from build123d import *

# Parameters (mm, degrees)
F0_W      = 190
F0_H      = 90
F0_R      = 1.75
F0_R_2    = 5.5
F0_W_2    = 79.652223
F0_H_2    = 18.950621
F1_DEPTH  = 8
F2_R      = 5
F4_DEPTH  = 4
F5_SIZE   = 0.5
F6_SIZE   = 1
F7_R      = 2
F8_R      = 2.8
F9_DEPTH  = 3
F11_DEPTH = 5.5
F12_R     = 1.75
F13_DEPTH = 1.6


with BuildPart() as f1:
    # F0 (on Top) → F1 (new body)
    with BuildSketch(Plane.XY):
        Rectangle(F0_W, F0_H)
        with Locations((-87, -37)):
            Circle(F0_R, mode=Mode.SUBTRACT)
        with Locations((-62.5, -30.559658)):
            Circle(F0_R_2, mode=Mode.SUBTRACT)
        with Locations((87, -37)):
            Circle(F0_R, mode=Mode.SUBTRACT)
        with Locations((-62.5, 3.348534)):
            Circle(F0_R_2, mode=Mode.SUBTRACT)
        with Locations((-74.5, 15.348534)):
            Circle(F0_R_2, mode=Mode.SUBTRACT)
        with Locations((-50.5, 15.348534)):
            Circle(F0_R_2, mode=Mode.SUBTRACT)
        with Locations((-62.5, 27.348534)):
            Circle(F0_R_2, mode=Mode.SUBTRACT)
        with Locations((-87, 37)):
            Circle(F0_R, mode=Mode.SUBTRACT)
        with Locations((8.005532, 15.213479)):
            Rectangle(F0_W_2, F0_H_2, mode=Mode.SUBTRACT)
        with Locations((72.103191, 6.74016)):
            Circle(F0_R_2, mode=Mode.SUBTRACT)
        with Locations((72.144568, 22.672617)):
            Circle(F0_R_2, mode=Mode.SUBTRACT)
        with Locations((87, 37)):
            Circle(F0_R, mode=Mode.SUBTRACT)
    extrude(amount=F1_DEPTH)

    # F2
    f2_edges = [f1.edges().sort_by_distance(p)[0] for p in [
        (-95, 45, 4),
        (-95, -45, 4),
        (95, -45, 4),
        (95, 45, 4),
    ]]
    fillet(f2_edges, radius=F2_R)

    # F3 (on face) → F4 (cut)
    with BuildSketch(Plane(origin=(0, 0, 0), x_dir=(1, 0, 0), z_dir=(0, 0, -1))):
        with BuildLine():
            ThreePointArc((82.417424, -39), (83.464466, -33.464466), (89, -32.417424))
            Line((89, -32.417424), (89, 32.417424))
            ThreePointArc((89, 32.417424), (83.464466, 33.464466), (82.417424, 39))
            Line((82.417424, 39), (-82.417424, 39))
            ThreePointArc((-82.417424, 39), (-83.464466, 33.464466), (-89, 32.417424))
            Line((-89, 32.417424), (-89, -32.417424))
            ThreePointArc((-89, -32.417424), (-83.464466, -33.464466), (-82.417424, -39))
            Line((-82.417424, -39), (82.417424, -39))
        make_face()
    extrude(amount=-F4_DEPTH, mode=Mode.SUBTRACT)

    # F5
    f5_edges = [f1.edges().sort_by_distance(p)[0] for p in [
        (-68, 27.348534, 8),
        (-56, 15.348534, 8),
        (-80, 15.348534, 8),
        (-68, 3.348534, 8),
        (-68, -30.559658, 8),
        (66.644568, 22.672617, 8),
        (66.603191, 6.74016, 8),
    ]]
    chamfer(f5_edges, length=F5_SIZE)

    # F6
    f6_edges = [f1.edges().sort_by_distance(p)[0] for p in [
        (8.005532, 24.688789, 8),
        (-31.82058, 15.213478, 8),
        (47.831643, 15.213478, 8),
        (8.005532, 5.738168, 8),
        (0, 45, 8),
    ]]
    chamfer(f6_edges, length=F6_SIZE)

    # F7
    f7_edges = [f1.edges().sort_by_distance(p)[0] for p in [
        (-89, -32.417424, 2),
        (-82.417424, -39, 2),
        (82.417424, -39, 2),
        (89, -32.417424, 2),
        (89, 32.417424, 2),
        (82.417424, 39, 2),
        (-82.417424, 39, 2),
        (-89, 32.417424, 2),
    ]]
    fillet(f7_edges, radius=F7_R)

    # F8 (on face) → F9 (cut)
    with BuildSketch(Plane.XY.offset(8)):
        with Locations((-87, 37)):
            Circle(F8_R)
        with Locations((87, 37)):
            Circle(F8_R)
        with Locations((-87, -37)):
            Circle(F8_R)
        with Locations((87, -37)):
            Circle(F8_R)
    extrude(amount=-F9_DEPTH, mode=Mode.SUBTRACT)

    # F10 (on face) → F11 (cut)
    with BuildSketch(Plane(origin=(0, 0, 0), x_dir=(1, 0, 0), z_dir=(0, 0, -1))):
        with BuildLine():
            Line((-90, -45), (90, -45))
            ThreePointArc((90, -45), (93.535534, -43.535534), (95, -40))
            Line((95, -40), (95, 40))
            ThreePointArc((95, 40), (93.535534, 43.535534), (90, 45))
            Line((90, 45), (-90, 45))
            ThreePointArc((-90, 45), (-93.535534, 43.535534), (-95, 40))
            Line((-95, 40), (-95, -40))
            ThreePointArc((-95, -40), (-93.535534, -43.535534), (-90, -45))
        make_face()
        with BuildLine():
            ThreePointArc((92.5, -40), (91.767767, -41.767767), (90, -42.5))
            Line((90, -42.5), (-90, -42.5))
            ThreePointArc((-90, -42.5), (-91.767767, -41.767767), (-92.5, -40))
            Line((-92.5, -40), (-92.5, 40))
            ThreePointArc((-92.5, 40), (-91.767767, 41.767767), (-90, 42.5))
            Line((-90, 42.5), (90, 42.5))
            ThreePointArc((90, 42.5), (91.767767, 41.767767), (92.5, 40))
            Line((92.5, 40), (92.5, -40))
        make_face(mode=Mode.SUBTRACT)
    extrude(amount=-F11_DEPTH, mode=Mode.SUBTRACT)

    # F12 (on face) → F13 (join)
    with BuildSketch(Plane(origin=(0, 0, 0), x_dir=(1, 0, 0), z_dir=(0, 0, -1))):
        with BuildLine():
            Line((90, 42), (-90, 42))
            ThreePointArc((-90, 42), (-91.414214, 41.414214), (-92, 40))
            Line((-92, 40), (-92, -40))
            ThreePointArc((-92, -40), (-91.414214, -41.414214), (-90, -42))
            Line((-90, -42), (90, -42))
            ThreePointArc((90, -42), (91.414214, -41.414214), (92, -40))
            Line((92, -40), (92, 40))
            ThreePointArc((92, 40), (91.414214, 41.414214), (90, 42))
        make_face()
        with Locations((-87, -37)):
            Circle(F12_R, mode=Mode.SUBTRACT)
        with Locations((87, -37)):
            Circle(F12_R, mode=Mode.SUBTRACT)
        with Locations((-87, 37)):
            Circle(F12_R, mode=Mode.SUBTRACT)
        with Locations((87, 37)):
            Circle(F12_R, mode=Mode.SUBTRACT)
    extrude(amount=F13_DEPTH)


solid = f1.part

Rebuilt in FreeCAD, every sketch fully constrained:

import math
import FreeCAD as App
import Part
import Sketcher


def edges_at(feature, points):
    """Names of the edges that pass closest to the given points."""
    edges = feature.Shape.Edges
    near = lambda p: min(range(len(edges)), key=lambda i: edges[i].distToShape(Part.Vertex(*p))[0])
    return sorted({f"Edge{near(p) + 1}" for p in points})


def add_polygon(sketch, points):
    """Adds a closed chain of lines whose ends are joined by coincident constraints."""
    first, n = sketch.GeometryCount, len(points)
    for a, b in zip(points, points[1:] + points[:1]):
        sketch.addGeometry(Part.LineSegment(App.Vector(*a, 0), App.Vector(*b, 0)), False)
    for i in range(n):
        sketch.addConstraint(Sketcher.Constraint("Coincident", first + i, 2, first + (i + 1) % n, 1))

doc = App.newDocument("Part")
body = doc.addObject("PartDesign::Body", "Body")

# Sketch on XY plane
sketch1 = doc.addObject("Sketcher::SketchObject", "Sketch")
body.addObject(sketch1)
sketch1.AttachmentSupport = (doc.XY_Plane, [""])
sketch1.MapMode = "FlatFace"
add_polygon(sketch1, [(-95, 45), (-95, -45), (95, -45), (95, 45)])  # lines 0-3
sketch1.addGeometry(Part.Circle(App.Vector(-87, -37, 0), App.Vector(0, 0, 1), 1.8), False)  # 4
sketch1.addGeometry(Part.Circle(App.Vector(-62.5, -30.6, 0), App.Vector(0, 0, 1), 5.5), False)  # 5
sketch1.addGeometry(Part.Circle(App.Vector(87, -37, 0), App.Vector(0, 0, 1), 1.8), False)  # 6
sketch1.addGeometry(Part.Circle(App.Vector(-62.5, 3.3, 0), App.Vector(0, 0, 1), 5.5), False)  # 7
sketch1.addGeometry(Part.Circle(App.Vector(-74.5, 15.3, 0), App.Vector(0, 0, 1), 5.5), False)  # 8
sketch1.addGeometry(Part.Circle(App.Vector(-50.5, 15.3, 0), App.Vector(0, 0, 1), 5.5), False)  # 9
sketch1.addGeometry(Part.Circle(App.Vector(-62.5, 27.3, 0), App.Vector(0, 0, 1), 5.5), False)  # 10
sketch1.addGeometry(Part.Circle(App.Vector(-87, 37, 0), App.Vector(0, 0, 1), 1.8), False)  # 11
add_polygon(sketch1, [(47.8, 5.7), (-31.8, 5.7), (-31.8, 24.7), (47.8, 24.7)])  # lines 12-15
sketch1.addGeometry(Part.Circle(App.Vector(72.1, 6.7, 0), App.Vector(0, 0, 1), 5.5), False)  # 16
sketch1.addGeometry(Part.Circle(App.Vector(72.1, 22.7, 0), App.Vector(0, 0, 1), 5.5), False)  # 17
sketch1.addGeometry(Part.Circle(App.Vector(87, 37, 0), App.Vector(0, 0, 1), 1.8), False)  # 18
sketch1.addConstraint(Sketcher.Constraint("Vertical", 0))
sketch1.addConstraint(Sketcher.Constraint("Horizontal", 1))
sketch1.addConstraint(Sketcher.Constraint("Vertical", 2))
sketch1.addConstraint(Sketcher.Constraint("Horizontal", 3))
sketch1.addConstraint(Sketcher.Constraint("Horizontal", 12))
sketch1.addConstraint(Sketcher.Constraint("Vertical", 13))
sketch1.addConstraint(Sketcher.Constraint("Horizontal", 14))
sketch1.addConstraint(Sketcher.Constraint("Vertical", 15))
sketch1.addConstraint(Sketcher.Constraint("Equal", 4, 6))
sketch1.addConstraint(Sketcher.Constraint("Equal", 5, 7))
sketch1.addConstraint(Sketcher.Constraint("Equal", 7, 8))
sketch1.addConstraint(Sketcher.Constraint("Equal", 8, 9))
sketch1.addConstraint(Sketcher.Constraint("Equal", 9, 10))
sketch1.addConstraint(Sketcher.Constraint("Equal", 6, 11))
sketch1.addConstraint(Sketcher.Constraint("Equal", 10, 16))
sketch1.addConstraint(Sketcher.Constraint("Equal", 16, 17))
sketch1.addConstraint(Sketcher.Constraint("Equal", 11, 18))
sketch1.addConstraint(Sketcher.Constraint("Symmetric", 6, 3, 11, 3, -1, 1))
sketch1.addConstraint(Sketcher.Constraint("Symmetric", 4, 3, 18, 3, -1, 1))
sketch1.addConstraint(Sketcher.Constraint("Symmetric", 0, 2, 2, 2, -1, 1))
sketch1.addConstraint(Sketcher.Constraint("Symmetric", 4, 3, 6, 3, -2))
sketch1.addConstraint(Sketcher.Constraint("Horizontal", 8, 3, 9, 3))
sketch1.addConstraint(Sketcher.Constraint("Vertical", 5, 3, 7, 3))
sketch1.addConstraint(Sketcher.Constraint("Vertical", 7, 3, 10, 3))
sketch1.addConstraint(Sketcher.Constraint("Diameter", 5, 11.0))
sketch1.addConstraint(Sketcher.Constraint("Diameter", 4, 3.5))
sketch1.addConstraint(Sketcher.Constraint("DistanceX", 1, 1, 1, 2, 190.0))
sketch1.addConstraint(Sketcher.Constraint("DistanceY", 0, 2, 0, 1, 90.0))
sketch1.addConstraint(Sketcher.Constraint("DistanceX", 4, 3, -1, 1, 87.0))
sketch1.addConstraint(Sketcher.Constraint("DistanceY", 4, 3, -1, 1, 37.0))
sketch1.addConstraint(Sketcher.Constraint("DistanceX", 8, 3, 7, 3, 12.0))
sketch1.addConstraint(Sketcher.Constraint("DistanceY", 7, 3, 8, 3, 12.0))
sketch1.addConstraint(Sketcher.Constraint("DistanceX", 7, 3, 9, 3, 12.0))
sketch1.addConstraint(Sketcher.Constraint("DistanceY", 8, 3, 10, 3, 12.0))
sketch1.addConstraint(Sketcher.Constraint("DistanceX", 5, 3, -1, 1, 62.5))
sketch1.addConstraint(Sketcher.Constraint("DistanceY", 13, 1, 13, 2, 18.950621))
sketch1.addConstraint(Sketcher.Constraint("DistanceX", 12, 2, 12, 1, 79.652223))
sketch1.addConstraint(Sketcher.Constraint("DistanceX", -1, 1, 16, 3, 72.103191))
sketch1.addConstraint(Sketcher.Constraint("DistanceY", -1, 1, 16, 3, 6.74016))
sketch1.addConstraint(Sketcher.Constraint("DistanceX", -1, 1, 17, 3, 72.144568))
sketch1.addConstraint(Sketcher.Constraint("DistanceX", 12, 2, -1, 1, 31.82058))
sketch1.addConstraint(Sketcher.Constraint("DistanceY", -1, 1, 12, 2, 5.738168))
sketch1.addConstraint(Sketcher.Constraint("DistanceY", 5, 3, 11, 3, 67.559658))
sketch1.addConstraint(Sketcher.Constraint("DistanceY", 15, 2, 17, 3, 16.934448))
sketch1.addConstraint(Sketcher.Constraint("DistanceY", -1, 1, 7, 3, 3.348534))
pad1 = doc.addObject("PartDesign::Pad", "Pad")
body.addObject(pad1)
pad1.Profile = sketch1
pad1.Length = 8
doc.recompute()

fillet = doc.addObject("PartDesign::Fillet", "Fillet")
body.addObject(fillet)
fillet.Base = (pad1, edges_at(pad1, [
    (-95, 45, 4),
    (-95, -45, 4),
    (95, -45, 4),
    (95, 45, 4),
]))
fillet.Radius = 5

# Sketch on XY plane
sketch2 = doc.addObject("Sketcher::SketchObject", "Sketch001")
body.addObject(sketch2)
sketch2.AttachmentSupport = (doc.XY_Plane, [""])
sketch2.MapMode = "FlatFace"
sketch2.addGeometry(Part.ArcOfCircle(Part.Circle(App.Vector(87, 37, 0), App.Vector(0, 0, 1), 5), math.radians(156), math.radians(294)), False)
sketch2.addGeometry(Part.LineSegment(App.Vector(89, 32, 0), App.Vector(89, -32, 0)), False)
sketch2.addGeometry(Part.ArcOfCircle(Part.Circle(App.Vector(87, -37, 0), App.Vector(0, 0, 1), 5), math.radians(66), math.radians(204)), False)
sketch2.addGeometry(Part.LineSegment(App.Vector(82, -39, 0), App.Vector(-82, -39, 0)), False)
sketch2.addGeometry(Part.ArcOfCircle(Part.Circle(App.Vector(-87, -37, 0), App.Vector(0, 0, 1), 5), math.radians(-24), math.radians(114)), False)
sketch2.addGeometry(Part.LineSegment(App.Vector(-89, -32, 0), App.Vector(-89, 32, 0)), False)
sketch2.addGeometry(Part.ArcOfCircle(Part.Circle(App.Vector(-87, 37, 0), App.Vector(0, 0, 1), 5), math.radians(-114), math.radians(24)), False)
sketch2.addGeometry(Part.LineSegment(App.Vector(-82, 39, 0), App.Vector(82, 39, 0)), False)
sketch2.addConstraint(Sketcher.Constraint("Coincident", 0, 2, 1, 1))
sketch2.addConstraint(Sketcher.Constraint("Coincident", 1, 2, 2, 1))
sketch2.addConstraint(Sketcher.Constraint("Coincident", 2, 2, 3, 1))
sketch2.addConstraint(Sketcher.Constraint("Coincident", 3, 2, 4, 1))
sketch2.addConstraint(Sketcher.Constraint("Coincident", 4, 2, 5, 1))
sketch2.addConstraint(Sketcher.Constraint("Coincident", 5, 2, 6, 1))
sketch2.addConstraint(Sketcher.Constraint("Coincident", 6, 2, 7, 1))
sketch2.addConstraint(Sketcher.Constraint("Coincident", 7, 2, 0, 1))
sketch2.addConstraint(Sketcher.Constraint("Vertical", 1))
sketch2.addConstraint(Sketcher.Constraint("Horizontal", 3))
sketch2.addConstraint(Sketcher.Constraint("Vertical", 5))
sketch2.addConstraint(Sketcher.Constraint("Horizontal", 7))
sketch2.addConstraint(Sketcher.Constraint("Equal", 0, 2))
sketch2.addConstraint(Sketcher.Constraint("Equal", 2, 4))
sketch2.addConstraint(Sketcher.Constraint("Equal", 4, 6))
sketch2.addConstraint(Sketcher.Constraint("Symmetric", 0, 3, 4, 3, -1, 1))
sketch2.addConstraint(Sketcher.Constraint("Symmetric", 2, 3, 6, 3, -1, 1))
sketch2.addConstraint(Sketcher.Constraint("Symmetric", 2, 3, 4, 3, -2))
sketch2.addConstraint(Sketcher.Constraint("Horizontal", 1, 2, 4, 2))
sketch2.addConstraint(Sketcher.Constraint("Vertical", 3, 2, 6, 2))
sketch2.addConstraint(Sketcher.Constraint("Radius", 0, 5.0))
sketch2.addConstraint(Sketcher.Constraint("DistanceX", -1, 1, 0, 3, 87.0))
sketch2.addConstraint(Sketcher.Constraint("DistanceY", -1, 1, 0, 3, 37.0))
sketch2.addConstraint(Sketcher.Constraint("DistanceX", -1, 1, 0, 2, 89.0))
sketch2.addConstraint(Sketcher.Constraint("DistanceY", 2, 2, -1, 1, 39.0))
pocket1 = doc.addObject("PartDesign::Pocket", "Pocket")
body.addObject(pocket1)
pocket1.Profile = sketch2
pocket1.Length = 4
pocket1.Reversed = True
doc.recompute()

chamfer = doc.addObject("PartDesign::Chamfer", "Chamfer")
body.addObject(chamfer)
chamfer.Base = (pocket1, edges_at(pocket1, [
    (-68, 27.349, 8),
    (-56, 15.349, 8),
    (-80, 15.349, 8),
    (-68, 3.349, 8),
    (-68, -30.56, 8),
    (66.645, 22.673, 8),
    (66.603, 6.74, 8),
]))
chamfer.Size = 0.5
doc.recompute()

chamfer2 = doc.addObject("PartDesign::Chamfer", "Chamfer001")
body.addObject(chamfer2)
chamfer2.Base = (chamfer, edges_at(chamfer, [
    (8.006, 24.689, 8),
    (-31.821, 15.213, 8),
    (47.832, 15.213, 8),
    (8.006, 5.738, 8),
    (0, 45, 8),
]))
chamfer2.Size = 1
doc.recompute()

fillet2 = doc.addObject("PartDesign::Fillet", "Fillet001")
body.addObject(fillet2)
fillet2.Base = (chamfer2, edges_at(chamfer2, [
    (-89, -32.417, 2),
    (-82.417, -39, 2),
    (82.417, -39, 2),
    (89, -32.417, 2),
    (89, 32.417, 2),
    (82.417, 39, 2),
    (-82.417, 39, 2),
    (-89, 32.417, 2),
]))
fillet2.Radius = 2

# Sketch on XY plane
sketch3 = doc.addObject("Sketcher::SketchObject", "Sketch002")
body.addObject(sketch3)
sketch3.AttachmentSupport = (doc.XY_Plane, [""])
sketch3.MapMode = "FlatFace"
sketch3.AttachmentOffset = App.Placement(App.Vector(0, 0, 8), App.Rotation())
sketch3.addGeometry(Part.Circle(App.Vector(-87, 37, 0), App.Vector(0, 0, 1), 2.8), False)
sketch3.addGeometry(Part.Circle(App.Vector(87, 37, 0), App.Vector(0, 0, 1), 2.8), False)
sketch3.addGeometry(Part.Circle(App.Vector(-87, -37, 0), App.Vector(0, 0, 1), 2.8), False)
sketch3.addGeometry(Part.Circle(App.Vector(87, -37, 0), App.Vector(0, 0, 1), 2.8), False)
sketch3.addConstraint(Sketcher.Constraint("Equal", 0, 1))
sketch3.addConstraint(Sketcher.Constraint("Equal", 1, 2))
sketch3.addConstraint(Sketcher.Constraint("Equal", 2, 3))
sketch3.addConstraint(Sketcher.Constraint("Symmetric", 1, 3, 2, 3, -1, 1))
sketch3.addConstraint(Sketcher.Constraint("Symmetric", 0, 3, 3, 3, -1, 1))
sketch3.addConstraint(Sketcher.Constraint("Symmetric", 0, 3, 1, 3, -2))
sketch3.addConstraint(Sketcher.Constraint("Diameter", 0, 5.6))
sketch3.addConstraint(Sketcher.Constraint("DistanceX", 0, 3, -1, 1, 87.0))
sketch3.addConstraint(Sketcher.Constraint("DistanceY", -1, 1, 0, 3, 37.0))
pocket2 = doc.addObject("PartDesign::Pocket", "Pocket001")
body.addObject(pocket2)
pocket2.Profile = sketch3
pocket2.Length = 3

# Sketch on XY plane
sketch4 = doc.addObject("Sketcher::SketchObject", "Sketch003")
body.addObject(sketch4)
sketch4.AttachmentSupport = (doc.XY_Plane, [""])
sketch4.MapMode = "FlatFace"
sketch4.addGeometry(Part.LineSegment(App.Vector(-90, 45, 0), App.Vector(90, 45, 0)), False)
sketch4.addGeometry(Part.ArcOfCircle(Part.Circle(App.Vector(90, 40, 0), App.Vector(0, 0, 1), 5), math.radians(0), math.radians(90)), False)
sketch4.addGeometry(Part.LineSegment(App.Vector(95, 40, 0), App.Vector(95, -40, 0)), False)
sketch4.addGeometry(Part.ArcOfCircle(Part.Circle(App.Vector(90, -40, 0), App.Vector(0, 0, 1), 5), math.radians(-90), math.radians(0)), False)
sketch4.addGeometry(Part.LineSegment(App.Vector(90, -45, 0), App.Vector(-90, -45, 0)), False)
sketch4.addGeometry(Part.ArcOfCircle(Part.Circle(App.Vector(-90, -40, 0), App.Vector(0, 0, 1), 5), math.radians(180), math.radians(270)), False)
sketch4.addGeometry(Part.LineSegment(App.Vector(-95, -40, 0), App.Vector(-95, 40, 0)), False)
sketch4.addGeometry(Part.ArcOfCircle(Part.Circle(App.Vector(-90, 40, 0), App.Vector(0, 0, 1), 5), math.radians(90), math.radians(180)), False)
sketch4.addGeometry(Part.LineSegment(App.Vector(92.5, -40, 0), App.Vector(92.5, 40, 0)), False)
sketch4.addGeometry(Part.ArcOfCircle(Part.Circle(App.Vector(90, 40, 0), App.Vector(0, 0, 1), 2.5), math.radians(0), math.radians(90)), False)
sketch4.addGeometry(Part.LineSegment(App.Vector(90, 42.5, 0), App.Vector(-90, 42.5, 0)), False)
sketch4.addGeometry(Part.ArcOfCircle(Part.Circle(App.Vector(-90, 40, 0), App.Vector(0, 0, 1), 2.5), math.radians(90), math.radians(180)), False)
sketch4.addGeometry(Part.LineSegment(App.Vector(-92.5, 40, 0), App.Vector(-92.5, -40, 0)), False)
sketch4.addGeometry(Part.ArcOfCircle(Part.Circle(App.Vector(-90, -40, 0), App.Vector(0, 0, 1), 2.5), math.radians(180), math.radians(270)), False)
sketch4.addGeometry(Part.LineSegment(App.Vector(-90, -42.5, 0), App.Vector(90, -42.5, 0)), False)
sketch4.addGeometry(Part.ArcOfCircle(Part.Circle(App.Vector(90, -40, 0), App.Vector(0, 0, 1), 2.5), math.radians(-90), math.radians(0)), False)
sketch4.addConstraint(Sketcher.Constraint("Tangent", 0, 2, 1, 2))
sketch4.addConstraint(Sketcher.Constraint("Tangent", 1, 1, 2, 1))
sketch4.addConstraint(Sketcher.Constraint("Tangent", 2, 2, 3, 2))
sketch4.addConstraint(Sketcher.Constraint("Tangent", 3, 1, 4, 1))
sketch4.addConstraint(Sketcher.Constraint("Tangent", 4, 2, 5, 2))
sketch4.addConstraint(Sketcher.Constraint("Tangent", 5, 1, 6, 1))
sketch4.addConstraint(Sketcher.Constraint("Tangent", 6, 2, 7, 2))
sketch4.addConstraint(Sketcher.Constraint("Tangent", 7, 1, 0, 1))
sketch4.addConstraint(Sketcher.Constraint("Tangent", 8, 2, 9, 1))
sketch4.addConstraint(Sketcher.Constraint("Tangent", 9, 2, 10, 1))
sketch4.addConstraint(Sketcher.Constraint("Tangent", 10, 2, 11, 1))
sketch4.addConstraint(Sketcher.Constraint("Tangent", 11, 2, 12, 1))
sketch4.addConstraint(Sketcher.Constraint("Tangent", 12, 2, 13, 1))
sketch4.addConstraint(Sketcher.Constraint("Tangent", 13, 2, 14, 1))
sketch4.addConstraint(Sketcher.Constraint("Tangent", 14, 2, 15, 1))
sketch4.addConstraint(Sketcher.Constraint("Tangent", 15, 2, 8, 1))
sketch4.addConstraint(Sketcher.Constraint("Horizontal", 0))
sketch4.addConstraint(Sketcher.Constraint("Vertical", 2))
sketch4.addConstraint(Sketcher.Constraint("Horizontal", 4))
sketch4.addConstraint(Sketcher.Constraint("Vertical", 6))
sketch4.addConstraint(Sketcher.Constraint("Vertical", 8))
sketch4.addConstraint(Sketcher.Constraint("Horizontal", 10))
sketch4.addConstraint(Sketcher.Constraint("Vertical", 12))
sketch4.addConstraint(Sketcher.Constraint("Horizontal", 14))
sketch4.addConstraint(Sketcher.Constraint("Coincident", 9, 3, 1, 3))
sketch4.addConstraint(Sketcher.Constraint("Coincident", 11, 3, 7, 3))
sketch4.addConstraint(Sketcher.Constraint("Coincident", 13, 3, 5, 3))
sketch4.addConstraint(Sketcher.Constraint("Equal", 1, 3))
sketch4.addConstraint(Sketcher.Constraint("Equal", 3, 5))
sketch4.addConstraint(Sketcher.Constraint("Equal", 5, 7))
sketch4.addConstraint(Sketcher.Constraint("Equal", 13, 15))
sketch4.addConstraint(Sketcher.Constraint("Symmetric", 1, 3, 5, 3, -1, 1))
sketch4.addConstraint(Sketcher.Constraint("Radius", 1, 5.0))
sketch4.addConstraint(Sketcher.Constraint("Radius", 9, 2.5))
sketch4.addConstraint(Sketcher.Constraint("DistanceX", 0, 1, 0, 2, 180.0))
sketch4.addConstraint(Sketcher.Constraint("DistanceY", 2, 2, 2, 1, 80.0))
pocket3 = doc.addObject("PartDesign::Pocket", "Pocket002")
body.addObject(pocket3)
pocket3.Profile = sketch4
pocket3.Length = 5.5
pocket3.Reversed = True

# Sketch on XY plane
sketch5 = doc.addObject("Sketcher::SketchObject", "Sketch004")
body.addObject(sketch5)
sketch5.AttachmentSupport = (doc.XY_Plane, [""])
sketch5.MapMode = "FlatFace"
sketch5.addGeometry(Part.LineSegment(App.Vector(90, -42, 0), App.Vector(-90, -42, 0)), False)
sketch5.addGeometry(Part.ArcOfCircle(Part.Circle(App.Vector(-90, -40, 0), App.Vector(0, 0, 1), 2), math.radians(180), math.radians(270)), False)
sketch5.addGeometry(Part.LineSegment(App.Vector(-92, -40, 0), App.Vector(-92, 40, 0)), False)
sketch5.addGeometry(Part.ArcOfCircle(Part.Circle(App.Vector(-90, 40, 0), App.Vector(0, 0, 1), 2), math.radians(90), math.radians(180)), False)
sketch5.addGeometry(Part.LineSegment(App.Vector(-90, 42, 0), App.Vector(90, 42, 0)), False)
sketch5.addGeometry(Part.ArcOfCircle(Part.Circle(App.Vector(90, 40, 0), App.Vector(0, 0, 1), 2), math.radians(0), math.radians(90)), False)
sketch5.addGeometry(Part.LineSegment(App.Vector(92, 40, 0), App.Vector(92, -40, 0)), False)
sketch5.addGeometry(Part.ArcOfCircle(Part.Circle(App.Vector(90, -40, 0), App.Vector(0, 0, 1), 2), math.radians(-90), math.radians(0)), False)
sketch5.addGeometry(Part.Circle(App.Vector(-87, 37, 0), App.Vector(0, 0, 1), 1.8), False)
sketch5.addGeometry(Part.Circle(App.Vector(87, 37, 0), App.Vector(0, 0, 1), 1.8), False)
sketch5.addGeometry(Part.Circle(App.Vector(-87, -37, 0), App.Vector(0, 0, 1), 1.8), False)
sketch5.addGeometry(Part.Circle(App.Vector(87, -37, 0), App.Vector(0, 0, 1), 1.8), False)
sketch5.addConstraint(Sketcher.Constraint("Tangent", 0, 2, 1, 2))
sketch5.addConstraint(Sketcher.Constraint("Tangent", 1, 1, 2, 1))
sketch5.addConstraint(Sketcher.Constraint("Tangent", 2, 2, 3, 2))
sketch5.addConstraint(Sketcher.Constraint("Tangent", 3, 1, 4, 1))
sketch5.addConstraint(Sketcher.Constraint("Tangent", 4, 2, 5, 2))
sketch5.addConstraint(Sketcher.Constraint("Tangent", 5, 1, 6, 1))
sketch5.addConstraint(Sketcher.Constraint("Tangent", 6, 2, 7, 2))
sketch5.addConstraint(Sketcher.Constraint("Tangent", 7, 1, 0, 1))
sketch5.addConstraint(Sketcher.Constraint("Horizontal", 0))
sketch5.addConstraint(Sketcher.Constraint("Vertical", 2))
sketch5.addConstraint(Sketcher.Constraint("Horizontal", 4))
sketch5.addConstraint(Sketcher.Constraint("Vertical", 6))
sketch5.addConstraint(Sketcher.Constraint("Equal", 1, 3))
sketch5.addConstraint(Sketcher.Constraint("Equal", 3, 5))
sketch5.addConstraint(Sketcher.Constraint("Equal", 5, 7))
sketch5.addConstraint(Sketcher.Constraint("Equal", 8, 9))
sketch5.addConstraint(Sketcher.Constraint("Equal", 9, 10))
sketch5.addConstraint(Sketcher.Constraint("Equal", 10, 11))
sketch5.addConstraint(Sketcher.Constraint("Symmetric", 1, 3, 5, 3, -1, 1))
sketch5.addConstraint(Sketcher.Constraint("Symmetric", 9, 3, 10, 3, -1, 1))
sketch5.addConstraint(Sketcher.Constraint("Symmetric", 8, 3, 11, 3, -1, 1))
sketch5.addConstraint(Sketcher.Constraint("Symmetric", 8, 3, 9, 3, -2))
sketch5.addConstraint(Sketcher.Constraint("Radius", 1, 1.999999))
sketch5.addConstraint(Sketcher.Constraint("Diameter", 8, 3.5))
sketch5.addConstraint(Sketcher.Constraint("DistanceX", 0, 2, 0, 1, 180.0))
sketch5.addConstraint(Sketcher.Constraint("DistanceY", 2, 1, 2, 2, 80.0))
sketch5.addConstraint(Sketcher.Constraint("DistanceX", 8, 3, -1, 1, 87.0))
sketch5.addConstraint(Sketcher.Constraint("DistanceY", -1, 1, 8, 3, 37.0))
pad2 = doc.addObject("PartDesign::Pad", "Pad001")
body.addObject(pad2)
pad2.Profile = sketch5
pad2.Length = 1.6
pad2.Reversed = True

doc.recompute()
